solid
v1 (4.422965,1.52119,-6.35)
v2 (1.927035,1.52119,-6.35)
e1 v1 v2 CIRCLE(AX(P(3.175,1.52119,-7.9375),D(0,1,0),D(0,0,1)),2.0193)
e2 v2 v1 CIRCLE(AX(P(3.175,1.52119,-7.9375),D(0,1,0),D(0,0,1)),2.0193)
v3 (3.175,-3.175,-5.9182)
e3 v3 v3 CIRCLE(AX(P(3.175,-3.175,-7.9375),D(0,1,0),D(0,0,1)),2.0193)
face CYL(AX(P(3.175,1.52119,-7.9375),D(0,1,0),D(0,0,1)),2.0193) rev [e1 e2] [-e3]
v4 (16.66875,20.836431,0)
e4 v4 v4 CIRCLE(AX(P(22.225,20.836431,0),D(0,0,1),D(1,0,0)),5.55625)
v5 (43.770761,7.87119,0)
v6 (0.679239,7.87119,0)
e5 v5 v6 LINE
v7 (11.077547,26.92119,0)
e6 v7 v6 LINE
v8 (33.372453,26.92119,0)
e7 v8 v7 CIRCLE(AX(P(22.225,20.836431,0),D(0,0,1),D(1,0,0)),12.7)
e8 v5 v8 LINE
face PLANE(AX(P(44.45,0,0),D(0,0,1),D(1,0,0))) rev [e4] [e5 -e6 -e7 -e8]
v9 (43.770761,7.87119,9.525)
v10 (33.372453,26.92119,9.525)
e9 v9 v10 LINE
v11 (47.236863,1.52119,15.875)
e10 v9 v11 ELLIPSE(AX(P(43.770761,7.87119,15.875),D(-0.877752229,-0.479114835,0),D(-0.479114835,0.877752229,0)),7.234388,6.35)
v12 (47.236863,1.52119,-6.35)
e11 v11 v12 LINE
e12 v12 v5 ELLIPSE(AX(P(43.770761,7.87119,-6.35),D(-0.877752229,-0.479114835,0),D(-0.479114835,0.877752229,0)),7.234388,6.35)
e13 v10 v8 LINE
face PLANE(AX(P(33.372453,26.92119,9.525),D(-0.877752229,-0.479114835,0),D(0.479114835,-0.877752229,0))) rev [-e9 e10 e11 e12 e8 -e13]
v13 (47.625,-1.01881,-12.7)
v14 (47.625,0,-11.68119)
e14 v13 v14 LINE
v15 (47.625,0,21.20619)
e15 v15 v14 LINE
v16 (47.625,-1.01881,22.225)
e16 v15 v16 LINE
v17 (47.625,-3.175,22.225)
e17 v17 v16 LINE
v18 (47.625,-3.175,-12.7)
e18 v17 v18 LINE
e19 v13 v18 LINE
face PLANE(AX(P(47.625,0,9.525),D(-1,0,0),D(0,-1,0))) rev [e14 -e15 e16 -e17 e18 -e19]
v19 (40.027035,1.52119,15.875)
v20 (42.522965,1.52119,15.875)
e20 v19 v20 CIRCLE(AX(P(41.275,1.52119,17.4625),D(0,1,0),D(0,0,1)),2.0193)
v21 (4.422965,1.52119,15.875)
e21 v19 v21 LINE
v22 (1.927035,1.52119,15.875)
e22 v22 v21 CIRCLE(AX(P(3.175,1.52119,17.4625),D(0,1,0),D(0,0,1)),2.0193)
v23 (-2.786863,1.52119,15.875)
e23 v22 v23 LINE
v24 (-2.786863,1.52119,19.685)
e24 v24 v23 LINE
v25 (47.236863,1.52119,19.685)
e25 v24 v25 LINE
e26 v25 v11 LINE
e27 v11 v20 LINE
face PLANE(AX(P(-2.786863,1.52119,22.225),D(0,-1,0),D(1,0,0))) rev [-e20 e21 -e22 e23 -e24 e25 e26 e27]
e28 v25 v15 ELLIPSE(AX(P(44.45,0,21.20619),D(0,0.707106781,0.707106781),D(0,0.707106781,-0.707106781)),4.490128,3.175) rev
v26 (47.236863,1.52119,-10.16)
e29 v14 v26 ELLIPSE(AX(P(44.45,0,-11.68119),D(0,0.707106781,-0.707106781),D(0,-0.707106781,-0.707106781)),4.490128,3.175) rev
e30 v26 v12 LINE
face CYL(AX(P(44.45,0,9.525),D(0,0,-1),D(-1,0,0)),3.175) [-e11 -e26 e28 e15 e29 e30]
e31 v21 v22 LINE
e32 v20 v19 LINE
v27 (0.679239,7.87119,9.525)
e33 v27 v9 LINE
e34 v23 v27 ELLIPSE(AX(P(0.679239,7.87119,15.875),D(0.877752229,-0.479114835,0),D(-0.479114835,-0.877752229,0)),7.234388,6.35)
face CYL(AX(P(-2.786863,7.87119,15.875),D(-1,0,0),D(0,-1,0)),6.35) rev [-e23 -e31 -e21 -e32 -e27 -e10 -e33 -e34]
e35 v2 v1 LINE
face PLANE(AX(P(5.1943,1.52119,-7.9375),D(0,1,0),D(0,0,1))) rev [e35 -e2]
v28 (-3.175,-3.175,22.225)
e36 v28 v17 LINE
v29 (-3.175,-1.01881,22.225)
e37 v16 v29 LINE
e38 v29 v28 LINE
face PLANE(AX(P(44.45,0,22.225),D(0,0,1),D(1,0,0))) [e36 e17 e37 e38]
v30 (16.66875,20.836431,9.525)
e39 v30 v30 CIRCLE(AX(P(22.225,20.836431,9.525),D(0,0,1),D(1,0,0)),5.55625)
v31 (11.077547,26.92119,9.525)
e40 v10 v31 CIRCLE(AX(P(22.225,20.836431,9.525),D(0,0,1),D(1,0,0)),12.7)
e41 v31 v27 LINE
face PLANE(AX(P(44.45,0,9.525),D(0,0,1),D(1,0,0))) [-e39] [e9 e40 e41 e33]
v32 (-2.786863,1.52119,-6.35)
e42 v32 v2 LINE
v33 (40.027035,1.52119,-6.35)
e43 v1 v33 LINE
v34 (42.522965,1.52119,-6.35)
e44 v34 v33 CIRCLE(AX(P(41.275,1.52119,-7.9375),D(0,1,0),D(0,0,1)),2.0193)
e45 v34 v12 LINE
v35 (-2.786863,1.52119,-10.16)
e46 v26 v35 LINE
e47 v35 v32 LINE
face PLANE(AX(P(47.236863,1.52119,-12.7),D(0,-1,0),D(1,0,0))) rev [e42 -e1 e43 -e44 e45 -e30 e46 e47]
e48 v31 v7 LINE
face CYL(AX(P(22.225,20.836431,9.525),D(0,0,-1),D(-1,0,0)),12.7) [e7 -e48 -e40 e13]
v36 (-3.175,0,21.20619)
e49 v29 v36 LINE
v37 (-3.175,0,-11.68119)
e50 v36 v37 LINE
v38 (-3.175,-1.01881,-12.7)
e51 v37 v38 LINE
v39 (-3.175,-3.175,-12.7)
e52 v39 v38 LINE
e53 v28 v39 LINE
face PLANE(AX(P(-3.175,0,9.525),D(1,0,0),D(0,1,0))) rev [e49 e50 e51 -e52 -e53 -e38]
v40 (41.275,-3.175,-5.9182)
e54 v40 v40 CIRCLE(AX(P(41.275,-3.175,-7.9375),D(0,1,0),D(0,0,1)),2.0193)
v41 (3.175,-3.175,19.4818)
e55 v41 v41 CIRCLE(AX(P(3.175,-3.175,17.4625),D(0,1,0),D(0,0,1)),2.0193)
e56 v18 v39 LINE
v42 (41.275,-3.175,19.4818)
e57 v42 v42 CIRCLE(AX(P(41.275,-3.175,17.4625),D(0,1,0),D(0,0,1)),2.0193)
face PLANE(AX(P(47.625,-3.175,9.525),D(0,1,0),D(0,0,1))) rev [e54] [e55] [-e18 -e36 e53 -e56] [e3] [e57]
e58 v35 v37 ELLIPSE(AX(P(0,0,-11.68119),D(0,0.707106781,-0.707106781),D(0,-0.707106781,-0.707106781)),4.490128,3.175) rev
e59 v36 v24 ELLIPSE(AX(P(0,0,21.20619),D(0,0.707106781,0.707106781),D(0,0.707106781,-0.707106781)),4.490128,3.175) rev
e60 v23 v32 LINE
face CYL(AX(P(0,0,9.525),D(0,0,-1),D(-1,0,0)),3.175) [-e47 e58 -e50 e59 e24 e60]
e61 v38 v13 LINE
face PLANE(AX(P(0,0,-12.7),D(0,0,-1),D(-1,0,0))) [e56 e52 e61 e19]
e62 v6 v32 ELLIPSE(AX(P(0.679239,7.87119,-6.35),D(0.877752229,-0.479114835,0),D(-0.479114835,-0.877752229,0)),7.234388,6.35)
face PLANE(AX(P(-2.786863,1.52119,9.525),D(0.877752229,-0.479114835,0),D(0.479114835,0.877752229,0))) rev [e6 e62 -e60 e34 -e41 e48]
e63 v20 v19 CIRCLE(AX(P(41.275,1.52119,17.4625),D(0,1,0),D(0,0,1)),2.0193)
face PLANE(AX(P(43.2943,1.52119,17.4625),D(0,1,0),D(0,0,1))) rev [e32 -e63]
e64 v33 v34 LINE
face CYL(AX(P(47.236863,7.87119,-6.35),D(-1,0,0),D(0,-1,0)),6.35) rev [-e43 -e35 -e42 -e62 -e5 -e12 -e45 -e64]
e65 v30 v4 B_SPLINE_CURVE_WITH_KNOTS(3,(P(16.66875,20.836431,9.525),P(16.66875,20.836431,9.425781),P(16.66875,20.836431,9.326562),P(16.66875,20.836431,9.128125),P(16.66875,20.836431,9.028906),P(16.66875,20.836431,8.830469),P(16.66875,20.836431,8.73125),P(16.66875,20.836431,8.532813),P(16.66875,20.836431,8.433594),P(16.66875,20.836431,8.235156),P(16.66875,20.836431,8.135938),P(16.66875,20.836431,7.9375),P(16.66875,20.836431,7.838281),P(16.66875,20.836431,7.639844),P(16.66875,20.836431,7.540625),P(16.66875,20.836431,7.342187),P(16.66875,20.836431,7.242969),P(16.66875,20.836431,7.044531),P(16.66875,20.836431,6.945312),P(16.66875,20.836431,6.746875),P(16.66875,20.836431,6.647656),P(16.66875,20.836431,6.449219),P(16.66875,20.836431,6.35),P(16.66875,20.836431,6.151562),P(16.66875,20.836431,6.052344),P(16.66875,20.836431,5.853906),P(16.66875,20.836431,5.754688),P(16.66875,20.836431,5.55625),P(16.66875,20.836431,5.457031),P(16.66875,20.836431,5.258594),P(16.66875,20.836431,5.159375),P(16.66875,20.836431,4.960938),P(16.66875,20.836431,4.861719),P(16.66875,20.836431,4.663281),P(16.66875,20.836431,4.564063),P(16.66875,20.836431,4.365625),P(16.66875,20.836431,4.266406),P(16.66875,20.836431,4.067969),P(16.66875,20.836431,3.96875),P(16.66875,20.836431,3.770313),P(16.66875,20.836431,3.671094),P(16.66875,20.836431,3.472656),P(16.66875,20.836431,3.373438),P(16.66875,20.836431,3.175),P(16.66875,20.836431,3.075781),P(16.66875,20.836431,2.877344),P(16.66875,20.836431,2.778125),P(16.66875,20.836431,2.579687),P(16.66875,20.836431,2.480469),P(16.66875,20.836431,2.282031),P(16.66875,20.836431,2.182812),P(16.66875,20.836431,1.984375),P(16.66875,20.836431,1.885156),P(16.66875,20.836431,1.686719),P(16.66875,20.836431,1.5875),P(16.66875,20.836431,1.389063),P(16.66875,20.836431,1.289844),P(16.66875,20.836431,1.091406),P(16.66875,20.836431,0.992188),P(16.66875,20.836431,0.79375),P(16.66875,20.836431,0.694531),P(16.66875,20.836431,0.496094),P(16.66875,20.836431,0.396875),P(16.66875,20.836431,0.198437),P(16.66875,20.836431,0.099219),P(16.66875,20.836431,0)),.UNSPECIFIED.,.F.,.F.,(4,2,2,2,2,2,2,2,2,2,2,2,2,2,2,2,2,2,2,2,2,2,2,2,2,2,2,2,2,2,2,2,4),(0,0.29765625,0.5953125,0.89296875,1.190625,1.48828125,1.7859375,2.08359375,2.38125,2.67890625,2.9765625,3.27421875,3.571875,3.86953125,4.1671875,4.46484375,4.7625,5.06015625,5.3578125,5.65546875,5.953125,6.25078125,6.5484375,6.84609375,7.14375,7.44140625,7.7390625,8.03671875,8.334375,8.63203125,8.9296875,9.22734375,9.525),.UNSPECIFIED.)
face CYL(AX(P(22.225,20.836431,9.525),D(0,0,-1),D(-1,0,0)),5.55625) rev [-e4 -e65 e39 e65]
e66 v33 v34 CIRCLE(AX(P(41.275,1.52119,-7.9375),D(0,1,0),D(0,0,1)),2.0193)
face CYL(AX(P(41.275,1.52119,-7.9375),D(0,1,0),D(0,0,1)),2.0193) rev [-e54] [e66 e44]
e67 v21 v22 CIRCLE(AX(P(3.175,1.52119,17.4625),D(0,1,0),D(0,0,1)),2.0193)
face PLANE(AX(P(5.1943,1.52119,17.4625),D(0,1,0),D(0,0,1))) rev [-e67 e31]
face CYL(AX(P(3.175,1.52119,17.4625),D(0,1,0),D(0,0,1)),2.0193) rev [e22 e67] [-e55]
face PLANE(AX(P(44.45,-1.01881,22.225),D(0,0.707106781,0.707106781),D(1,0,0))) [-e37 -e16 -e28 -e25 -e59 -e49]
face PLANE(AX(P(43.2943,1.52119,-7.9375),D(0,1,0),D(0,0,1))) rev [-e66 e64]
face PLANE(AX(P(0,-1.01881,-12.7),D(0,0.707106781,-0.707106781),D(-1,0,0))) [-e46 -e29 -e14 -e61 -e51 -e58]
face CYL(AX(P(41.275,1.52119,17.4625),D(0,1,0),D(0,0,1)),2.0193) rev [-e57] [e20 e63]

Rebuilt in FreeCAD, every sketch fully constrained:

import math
import FreeCAD as App
import Part
import Sketcher
Q = App.Units.Quantity


def edges_at(feature, points):
    """Names of the edges that pass closest to the given points."""
    edges = feature.Shape.Edges
    near = lambda p: min(range(len(edges)), key=lambda i: edges[i].distToShape(Part.Vertex(*p))[0])
    return sorted({f"Edge{near(p) + 1}" for p in points})

doc = App.newDocument("Part")
params = doc.addObject("Spreadsheet::Sheet", "Params")
for row, (alias, value) in enumerate([
    ("sketch1_radius", "0.5 in"),
    ("sketch1_width", "2 in"),
    ("sketch1_diameter", "0.4375 in"),
    ("sketch1_radius2", "0.125 in"),
    ("sketch1_height", "0.125 in"),
    ("pad1_length", "0.375 in"),
    ("sketch2_width", "2 in"),
    ("sketch2_radius", "0.125 in"),
    ("sketch2_height", "0.125 in"),
    ("pad2_length", "0.5 in"),
    ("chamfer_size", "0.1 in"),
    ("sketch3_width", "2 in"),
    ("sketch3_radius", "0.125 in"),
    ("sketch3_height", "0.125 in"),
    ("pad3_length", "0.5 in"),
    ("chamfer2_size", "0.1 in"),
    ("fillet_radius", "0.25 in"),
    ("groove_angle", "360 deg"),
    ("linearpattern_pitch", "1.5 in"),
    ("linearpattern2_pitch", "45.790501 mm"),
    ("linearpattern3_pitch", "1 in"),
], start=1):
    params.set(f"A{row}", alias)
    params.set(f"B{row}", "=" + value)
    params.setAlias(f"B{row}", alias)

body = doc.addObject("PartDesign::Body", "Body")

sketch1 = body.newObject("Sketcher::SketchObject", "Sketch")
sketch1.AttachmentSupport = (doc.getObject("XY_Plane"), [""])
sketch1.MapMode = "FlatFace"
sketch1.addGeometry([
    Part.LineSegment(App.Vector(47.6, -3.2, 0), App.Vector(47.6, 0, 0)),
    Part.ArcOfCircle(Part.Circle(App.Vector(44.4, 0, 0), App.Vector(0, 0, 1), 3.2), math.radians(0), math.radians(29)),
    Part.LineSegment(App.Vector(47.2, 1.5, 0), App.Vector(33.4, 26.9, 0)),
    Part.ArcOfCircle(Part.Circle(App.Vector(22.2, 20.8, 0), App.Vector(0, 0, 1), 12.7), math.radians(29), math.radians(151)),
    Part.LineSegment(App.Vector(11.1, 26.9, 0), App.Vector(-2.8, 1.5, 0)),
    Part.ArcOfCircle(Part.Circle(App.Vector(0, 0, 0), App.Vector(0, 0, 1), 3.2), math.radians(151), math.radians(180)),
    Part.LineSegment(App.Vector(-3.2, 0, 0), App.Vector(-3.2, -3.2, 0)),
    Part.LineSegment(App.Vector(-3.2, -3.2, 0), App.Vector(47.6, -3.2, 0)),
    Part.Circle(App.Vector(22.2, 20.8, 0), App.Vector(0, 0, 1), 5.6),
], False)
sketch1.addConstraint([
    Sketcher.Constraint("Tangent", 0, 2, 1, 1),
    Sketcher.Constraint("Tangent", 1, 2, 2, 1),
    Sketcher.Constraint("Tangent", 2, 2, 3, 1),
    Sketcher.Constraint("Tangent", 3, 2, 4, 1),
    Sketcher.Constraint("Tangent", 4, 2, 5, 1),
    Sketcher.Constraint("Tangent", 5, 2, 6, 1),
    Sketcher.Constraint("Coincident", 6, 2, 7, 1),
    Sketcher.Constraint("Coincident", 7, 2, 0, 1),
    Sketcher.Constraint("Vertical", 0),
    Sketcher.Constraint("Vertical", 6),
    Sketcher.Constraint("Horizontal", 7),
    Sketcher.Constraint("Coincident", 5, 3, -1, 1),
    Sketcher.Constraint("Coincident", 8, 3, 3, 3),
    Sketcher.Constraint("Equal", 1, 5),
    Sketcher.Constraint("PointOnObject", 1, 3, -1),
    Sketcher.Constraint("Horizontal", 2, 2, 3, 2),
    Sketcher.Constraint("Radius", 3, Q("0.5 in")),
    Sketcher.Constraint("DistanceX", 7, 1, 7, 2, Q("2 in")),
    Sketcher.Constraint("Diameter", 8, Q("0.4375 in")),
    Sketcher.Constraint("Radius", 1, Q("0.125 in")),
    Sketcher.Constraint("DistanceY", 1, 2, 2, 2, Q("1 in")),
    Sketcher.Constraint("DistanceY", 0, 1, 0, 2, Q("0.125 in")),
])
sketch1.setExpression("Constraints[16]", "Params.sketch1_radius")
sketch1.setExpression("Constraints[17]", "Params.sketch1_width")
sketch1.setExpression("Constraints[18]", "Params.sketch1_diameter")
sketch1.setExpression("Constraints[19]", "Params.sketch1_radius2")
sketch1.setExpression("Constraints[21]", "Params.sketch1_height")
pad1 = body.newObject("PartDesign::Pad", "Pad")
pad1.Profile = sketch1
pad1.setExpression("Length", "Params.pad1_length")

sketch2 = body.newObject("Sketcher::SketchObject", "Sketch001")
sketch2.AttachmentSupport = (doc.getObject("XY_Plane"), [""])
sketch2.MapMode = "FlatFace"
sketch2.AttachmentOffset = App.Placement(App.Vector(0, 0, 0.375 * 25.4), App.Rotation())
sketch2.addGeometry([
    Part.LineSegment(App.Vector(47.6, -3.2, 0), App.Vector(47.6, 0, 0)),
    Part.ArcOfCircle(Part.Circle(App.Vector(44.4, 0, 0), App.Vector(0, 0, 1), 3.2), math.radians(0), math.radians(29)),
    Part.LineSegment(App.Vector(47.2, 1.5, 0), App.Vector(-2.8, 1.5, 0)),
    Part.ArcOfCircle(Part.Circle(App.Vector(0, 0, 0), App.Vector(0, 0, 1), 3.2), math.radians(151), math.radians(180)),
    Part.LineSegment(App.Vector(-3.2, 0, 0), App.Vector(-3.2, -3.2, 0)),
    Part.LineSegment(App.Vector(-3.2, -3.2, 0), App.Vector(47.6, -3.2, 0)),
], False)
sketch2.addConstraint([
    Sketcher.Constraint("Tangent", 0, 2, 1, 1),
    Sketcher.Constraint("Coincident", 1, 2, 2, 1),
    Sketcher.Constraint("Coincident", 2, 2, 3, 1),
    Sketcher.Constraint("Tangent", 3, 2, 4, 1),
    Sketcher.Constraint("Coincident", 4, 2, 5, 1),
    Sketcher.Constraint("Coincident", 5, 2, 0, 1),
    Sketcher.Constraint("Vertical", 0),
    Sketcher.Constraint("Horizontal", 2),
    Sketcher.Constraint("Vertical", 4),
    Sketcher.Constraint("Horizontal", 5),
    Sketcher.Constraint("Coincident", 3, 3, -1, 1),
    Sketcher.Constraint("Equal", 1, 3),
    Sketcher.Constraint("PointOnObject", 1, 3, -1),
    Sketcher.Constraint("DistanceX", 5, 1, 5, 2, Q("2 in")),
    Sketcher.Constraint("Radius", 1, Q("0.125 in")),
    Sketcher.Constraint("DistanceY", 0, 1, 0, 2, Q("0.125 in")),
    Sketcher.Constraint("DistanceX", 2, 2, 2, 1, Q("50.023727 mm")),
])
sketch2.setExpression("Constraints[13]", "Params.sketch2_width")
sketch2.setExpression("Constraints[14]", "Params.sketch2_radius")
sketch2.setExpression("Constraints[15]", "Params.sketch2_height")
pad2 = body.newObject("PartDesign::Pad", "Pad001")
pad2.Profile = sketch2
pad2.setExpression("Length", "Params.pad2_length")
doc.recompute()

chamfer = body.newObject("PartDesign::Chamfer", "Chamfer")
chamfer.Base = (pad2, edges_at(pad2, [(22.225, 1.521, 22.225)]))
chamfer.setExpression("Size", "Params.chamfer_size")

sketch3 = body.newObject("Sketcher::SketchObject", "Sketch002")
sketch3.AttachmentSupport = (doc.getObject("XY_Plane"), [""])
sketch3.MapMode = "FlatFace"
sketch3.AttachmentOffset = App.Placement(App.Vector(0, 0, -0.5 * 25.4), App.Rotation())
sketch3.addGeometry([
    Part.LineSegment(App.Vector(-3.2, -3.2, 0), App.Vector(-3.2, 0, 0)),
    Part.ArcOfCircle(Part.Circle(App.Vector(0, 0, 0), App.Vector(0, 0, 1), 3.2), math.radians(151), math.radians(180)),
    Part.LineSegment(App.Vector(-2.8, 1.5, 0), App.Vector(47.2, 1.5, 0)),
    Part.ArcOfCircle(Part.Circle(App.Vector(44.4, 0, 0), App.Vector(0, 0, 1), 3.2), math.radians(0), math.radians(29)),
    Part.LineSegment(App.Vector(47.6, 0, 0), App.Vector(47.6, -3.2, 0)),
    Part.LineSegment(App.Vector(47.6, -3.2, 0), App.Vector(-3.2, -3.2, 0)),
], False)
sketch3.addConstraint([
    Sketcher.Constraint("Tangent", 0, 2, 1, 2),
    Sketcher.Constraint("Coincident", 1, 1, 2, 1),
    Sketcher.Constraint("Coincident", 2, 2, 3, 2),
    Sketcher.Constraint("Tangent", 3, 1, 4, 1),
    Sketcher.Constraint("Coincident", 4, 2, 5, 1),
    Sketcher.Constraint("Coincident", 5, 2, 0, 1),
    Sketcher.Constraint("Vertical", 0),
    Sketcher.Constraint("Horizontal", 2),
    Sketcher.Constraint("Vertical", 4),
    Sketcher.Constraint("Horizontal", 5),
    Sketcher.Constraint("Coincident", 1, 3, -1, 1),
    Sketcher.Constraint("Equal", 1, 3),
    Sketcher.Constraint("PointOnObject", 3, 3, -1),
    Sketcher.Constraint("DistanceX", 5, 2, 5, 1, Q("2 in")),
    Sketcher.Constraint("Radius", 1, Q("0.125 in")),
    Sketcher.Constraint("DistanceY", 0, 1, 0, 2, Q("0.125 in")),
    Sketcher.Constraint("DistanceX", 2, 1, 2, 2, Q("50.023727 mm")),
])
sketch3.setExpression("Constraints[13]", "Params.sketch3_width")
sketch3.setExpression("Constraints[14]", "Params.sketch3_radius")
sketch3.setExpression("Constraints[15]", "Params.sketch3_height")
pad3 = body.newObject("PartDesign::Pad", "Pad002")
pad3.Profile = sketch3
pad3.setExpression("Length", "Params.pad3_length")
doc.recompute()

chamfer2 = body.newObject("PartDesign::Chamfer", "Chamfer001")
chamfer2.Base = (pad3, edges_at(pad3, [(22.225, 1.521, -12.7)]))
chamfer2.setExpression("Size", "Params.chamfer2_size")
doc.recompute()

fillet = body.newObject("PartDesign::Fillet", "Fillet")
fillet.Base = (chamfer2, edges_at(chamfer2, [(22.225, 1.521, 9.525), (22.225, 1.521, 0)]))
fillet.setExpression("Radius", "Params.fillet_radius")

sketch4 = body.newObject("Sketcher::SketchObject", "Sketch003")
sketch4.AttachmentSupport = (doc.getObject("YZ_Plane"), [""])
sketch4.MapMode = "FlatFace"
sketch4.AttachmentOffset = App.Placement(App.Vector(0, 0, 0.125 * 25.4), App.Rotation())
sketch4.addGeometry([
    Part.LineSegment(App.Vector(-3.2, -7.9, 0), App.Vector(1.5, -7.9, 0)),
    Part.LineSegment(App.Vector(1.5, -7.9, 0), App.Vector(1.5, -5.9, 0)),
    Part.LineSegment(App.Vector(1.5, -5.9, 0), App.Vector(-3.2, -5.9, 0)),
    Part.LineSegment(App.Vector(-3.2, -5.9, 0), App.Vector(-3.2, -7.9, 0)),
], False)
sketch4.addGeometry(Part.LineSegment(App.Vector(1.5, -7.9, 0), App.Vector(-3.2, -7.9, 0)), True)
sketch4.addConstraint([
    Sketcher.Constraint("Coincident", 0, 2, 1, 1),
    Sketcher.Constraint("Coincident", 1, 2, 2, 1),
    Sketcher.Constraint("Coincident", 2, 2, 3, 1),
    Sketcher.Constraint("Coincident", 3, 2, 0, 1),
    Sketcher.Constraint("Horizontal", 0),
    Sketcher.Constraint("Vertical", 1),
    Sketcher.Constraint("Horizontal", 2),
    Sketcher.Constraint("Vertical", 3),
    Sketcher.Constraint("Horizontal", 4),
    Sketcher.Constraint("Coincident", 4, 1, 0, 2),
    Sketcher.Constraint("Vertical", 2, 2, 4, 2),
    Sketcher.Constraint("DistanceY", 1, 1, 1, 2, Q("0.0795 in")),
    Sketcher.Constraint("DistanceY", 0, 2, -1, 1, Q("0.3125 in")),
    Sketcher.Constraint("DistanceX", 2, 2, -1, 1, Q("0.125 in")),
    Sketcher.Constraint("DistanceX", 0, 1, 0, 2, Q("4.69619 mm")),
])
groove = body.newObject("PartDesign::Groove", "Groove")
groove.Profile = sketch4
groove.ReferenceAxis = (sketch4, ["Axis0"])
groove.setExpression("Angle", "Params.groove_angle")
doc.recompute()

linearpattern = body.newObject("PartDesign::LinearPattern", "LinearPattern")
linearpattern.Originals = [groove]
linearpattern.Direction = (doc.getObject("X_Axis"), [""])
linearpattern.Mode = "offset"
linearpattern.setExpression("Offset", "Params.linearpattern_pitch")
linearpattern.Occurrences = 2
body.Tip = linearpattern
doc.recompute()

datumline = body.newObject("PartDesign::Line", "DatumLine")
datumline.Placement = App.Placement(App.Vector(0, 0, 0), App.Rotation(App.Vector(0, 0, 1), App.Vector(0.832050294, 0, 0.554700196)))
linearpattern2 = body.newObject("PartDesign::LinearPattern", "LinearPattern001")
linearpattern2.Originals = [groove]
linearpattern2.Direction = (datumline, [""])
linearpattern2.Mode = "offset"
linearpattern2.setExpression("Offset", "Params.linearpattern2_pitch")
linearpattern2.Occurrences = 2
body.Tip = linearpattern2
doc.recompute()

linearpattern3 = body.newObject("PartDesign::LinearPattern", "LinearPattern002")
linearpattern3.Originals = [groove]
linearpattern3.Direction = (doc.getObject("Z_Axis"), [""])
linearpattern3.Mode = "offset"
linearpattern3.setExpression("Offset", "Params.linearpattern3_pitch")
linearpattern3.Occurrences = 2
body.Tip = linearpattern3

doc.recompute()
